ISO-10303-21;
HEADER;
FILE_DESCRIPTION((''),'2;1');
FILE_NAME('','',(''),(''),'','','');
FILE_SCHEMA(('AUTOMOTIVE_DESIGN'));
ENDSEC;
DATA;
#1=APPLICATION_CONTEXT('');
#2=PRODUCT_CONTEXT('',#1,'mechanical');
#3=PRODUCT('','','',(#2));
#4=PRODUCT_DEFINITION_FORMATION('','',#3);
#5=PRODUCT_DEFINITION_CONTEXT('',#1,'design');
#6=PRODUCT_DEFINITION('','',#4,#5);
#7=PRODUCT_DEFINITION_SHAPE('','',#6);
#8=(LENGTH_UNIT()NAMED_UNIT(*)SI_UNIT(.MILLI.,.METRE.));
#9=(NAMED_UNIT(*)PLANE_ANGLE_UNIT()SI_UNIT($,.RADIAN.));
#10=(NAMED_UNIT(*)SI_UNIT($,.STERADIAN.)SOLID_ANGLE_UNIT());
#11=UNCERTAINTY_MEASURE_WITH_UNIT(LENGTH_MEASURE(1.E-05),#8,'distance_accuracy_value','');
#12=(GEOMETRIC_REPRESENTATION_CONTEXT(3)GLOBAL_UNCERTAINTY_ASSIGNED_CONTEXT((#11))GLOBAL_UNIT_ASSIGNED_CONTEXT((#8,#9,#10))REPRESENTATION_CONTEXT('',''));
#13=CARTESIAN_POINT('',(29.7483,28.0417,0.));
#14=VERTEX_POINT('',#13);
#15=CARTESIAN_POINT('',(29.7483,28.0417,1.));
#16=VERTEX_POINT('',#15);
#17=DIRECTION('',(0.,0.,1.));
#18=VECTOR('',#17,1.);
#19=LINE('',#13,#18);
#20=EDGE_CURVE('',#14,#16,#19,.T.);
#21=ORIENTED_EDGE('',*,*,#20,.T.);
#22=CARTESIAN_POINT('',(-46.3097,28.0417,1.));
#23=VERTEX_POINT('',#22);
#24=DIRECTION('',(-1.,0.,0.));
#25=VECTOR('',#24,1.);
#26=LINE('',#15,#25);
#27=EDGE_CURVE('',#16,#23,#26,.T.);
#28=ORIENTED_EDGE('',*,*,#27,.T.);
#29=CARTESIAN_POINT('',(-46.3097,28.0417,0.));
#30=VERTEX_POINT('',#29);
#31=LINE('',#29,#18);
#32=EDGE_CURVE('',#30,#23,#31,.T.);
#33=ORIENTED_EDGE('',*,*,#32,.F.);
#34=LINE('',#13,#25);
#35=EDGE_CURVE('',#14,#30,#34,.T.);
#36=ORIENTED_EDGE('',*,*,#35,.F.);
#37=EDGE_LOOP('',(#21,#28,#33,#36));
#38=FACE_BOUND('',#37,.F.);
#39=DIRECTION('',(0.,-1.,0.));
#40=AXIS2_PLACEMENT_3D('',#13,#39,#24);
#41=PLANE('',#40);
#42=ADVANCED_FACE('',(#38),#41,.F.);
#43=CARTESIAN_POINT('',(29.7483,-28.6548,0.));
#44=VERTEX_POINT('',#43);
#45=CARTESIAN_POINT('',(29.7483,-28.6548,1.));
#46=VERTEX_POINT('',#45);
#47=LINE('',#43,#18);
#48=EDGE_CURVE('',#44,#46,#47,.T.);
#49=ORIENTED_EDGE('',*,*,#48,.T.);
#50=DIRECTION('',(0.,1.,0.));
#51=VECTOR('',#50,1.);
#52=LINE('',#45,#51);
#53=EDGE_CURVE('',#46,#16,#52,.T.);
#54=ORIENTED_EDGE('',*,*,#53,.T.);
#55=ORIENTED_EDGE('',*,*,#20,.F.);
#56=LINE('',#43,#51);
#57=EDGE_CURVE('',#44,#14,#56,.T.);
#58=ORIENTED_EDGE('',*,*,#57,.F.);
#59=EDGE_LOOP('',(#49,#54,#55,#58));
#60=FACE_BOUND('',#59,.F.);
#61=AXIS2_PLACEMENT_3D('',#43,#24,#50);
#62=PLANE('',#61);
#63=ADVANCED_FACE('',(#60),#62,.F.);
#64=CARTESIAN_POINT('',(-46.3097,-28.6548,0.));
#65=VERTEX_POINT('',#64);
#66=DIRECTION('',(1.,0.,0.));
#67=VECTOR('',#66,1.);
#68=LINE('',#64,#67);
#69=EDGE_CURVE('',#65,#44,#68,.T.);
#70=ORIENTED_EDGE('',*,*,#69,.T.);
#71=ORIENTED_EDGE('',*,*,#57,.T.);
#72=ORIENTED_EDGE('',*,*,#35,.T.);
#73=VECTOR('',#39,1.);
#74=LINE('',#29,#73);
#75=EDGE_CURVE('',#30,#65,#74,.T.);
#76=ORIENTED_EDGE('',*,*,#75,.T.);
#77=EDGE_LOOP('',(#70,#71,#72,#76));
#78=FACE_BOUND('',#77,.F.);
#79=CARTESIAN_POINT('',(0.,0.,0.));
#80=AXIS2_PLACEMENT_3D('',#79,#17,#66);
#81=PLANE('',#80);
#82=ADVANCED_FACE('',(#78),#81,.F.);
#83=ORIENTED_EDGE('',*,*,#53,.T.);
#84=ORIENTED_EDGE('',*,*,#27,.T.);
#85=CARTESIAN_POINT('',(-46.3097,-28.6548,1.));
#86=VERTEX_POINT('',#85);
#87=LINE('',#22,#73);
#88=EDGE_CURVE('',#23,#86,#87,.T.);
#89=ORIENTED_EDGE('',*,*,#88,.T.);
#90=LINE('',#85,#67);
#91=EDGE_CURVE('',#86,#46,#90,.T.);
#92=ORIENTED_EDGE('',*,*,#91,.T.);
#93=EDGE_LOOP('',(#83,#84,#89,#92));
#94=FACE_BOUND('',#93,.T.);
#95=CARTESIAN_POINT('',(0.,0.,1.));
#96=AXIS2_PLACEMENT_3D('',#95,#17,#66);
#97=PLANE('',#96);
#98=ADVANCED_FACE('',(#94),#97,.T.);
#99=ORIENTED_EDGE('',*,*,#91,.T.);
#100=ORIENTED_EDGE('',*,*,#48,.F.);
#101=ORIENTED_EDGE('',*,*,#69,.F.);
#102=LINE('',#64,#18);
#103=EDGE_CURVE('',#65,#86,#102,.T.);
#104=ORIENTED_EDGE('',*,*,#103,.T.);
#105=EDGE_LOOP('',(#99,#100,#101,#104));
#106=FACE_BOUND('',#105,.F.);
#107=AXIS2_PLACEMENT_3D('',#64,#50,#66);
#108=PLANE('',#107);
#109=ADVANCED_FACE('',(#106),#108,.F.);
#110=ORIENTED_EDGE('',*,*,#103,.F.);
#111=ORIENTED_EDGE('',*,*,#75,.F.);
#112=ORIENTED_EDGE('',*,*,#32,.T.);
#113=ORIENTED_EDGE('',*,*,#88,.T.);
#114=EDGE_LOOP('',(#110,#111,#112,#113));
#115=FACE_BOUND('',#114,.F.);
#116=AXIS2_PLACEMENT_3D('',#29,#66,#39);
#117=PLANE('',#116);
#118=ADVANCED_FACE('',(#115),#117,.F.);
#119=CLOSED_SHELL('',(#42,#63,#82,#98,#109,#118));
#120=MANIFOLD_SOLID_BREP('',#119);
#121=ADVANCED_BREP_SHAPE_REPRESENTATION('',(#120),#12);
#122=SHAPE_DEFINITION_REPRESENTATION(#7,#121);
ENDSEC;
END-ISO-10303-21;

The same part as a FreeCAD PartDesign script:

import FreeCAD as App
import Part
import Sketcher

doc = App.newDocument("Part")
body = doc.addObject("PartDesign::Body", "Body")

# Sketch on XY plane
sketch1 = doc.addObject("Sketcher::SketchObject", "Sketch")
body.addObject(sketch1)
sketch1.AttachmentSupport = (doc.XY_Plane, [""])
sketch1.MapMode = "FlatFace"
sketch1.addGeometry([
    Part.LineSegment(App.Vector(-46, 28, 0), App.Vector(-46, -29, 0)),
    Part.LineSegment(App.Vector(-46, -29, 0), App.Vector(30, -29, 0)),
    Part.LineSegment(App.Vector(30, -29, 0), App.Vector(30, 28, 0)),
    Part.LineSegment(App.Vector(30, 28, 0), App.Vector(-46, 28, 0)),
], False)
sketch1.addConstraint([
    Sketcher.Constraint("Coincident", 0, 2, 1, 1),
    Sketcher.Constraint("Coincident", 1, 2, 2, 1),
    Sketcher.Constraint("Coincident", 2, 2, 3, 1),
    Sketcher.Constraint("Coincident", 3, 2, 0, 1),
    Sketcher.Constraint("Vertical", 0),
    Sketcher.Constraint("Horizontal", 1),
    Sketcher.Constraint("Vertical", 2),
    Sketcher.Constraint("Horizontal", 3),
    Sketcher.Constraint("DistanceX", 1, 1, 1, 2, 76.058),
    Sketcher.Constraint("DistanceY", 0, 2, 0, 1, 56.6965),
    Sketcher.Constraint("DistanceX", 0, 2, -1, 1, 46.3097),
    Sketcher.Constraint("DistanceY", 0, 2, -1, 1, 28.6548),
])
pad1 = doc.addObject("PartDesign::Pad", "Pad")
body.addObject(pad1)
pad1.Profile = sketch1
pad1.Length = 1

doc.recompute()
